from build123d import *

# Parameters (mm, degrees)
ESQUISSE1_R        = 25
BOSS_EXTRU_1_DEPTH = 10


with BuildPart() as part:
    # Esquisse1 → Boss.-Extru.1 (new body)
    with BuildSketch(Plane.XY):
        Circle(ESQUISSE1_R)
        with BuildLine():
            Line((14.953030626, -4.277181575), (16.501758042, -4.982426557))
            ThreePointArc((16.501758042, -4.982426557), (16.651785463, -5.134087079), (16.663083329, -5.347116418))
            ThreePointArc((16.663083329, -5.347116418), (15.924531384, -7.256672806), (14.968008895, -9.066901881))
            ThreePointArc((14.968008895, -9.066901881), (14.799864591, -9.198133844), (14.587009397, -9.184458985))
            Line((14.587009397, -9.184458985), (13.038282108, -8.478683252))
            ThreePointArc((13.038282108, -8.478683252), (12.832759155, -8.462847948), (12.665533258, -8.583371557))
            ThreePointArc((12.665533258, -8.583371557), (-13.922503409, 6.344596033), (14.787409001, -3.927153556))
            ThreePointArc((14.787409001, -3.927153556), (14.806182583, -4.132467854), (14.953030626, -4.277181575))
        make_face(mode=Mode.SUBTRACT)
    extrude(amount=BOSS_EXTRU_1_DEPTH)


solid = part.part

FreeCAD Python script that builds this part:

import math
import FreeCAD as App
import Part
import Sketcher
from FreeCAD import Vector
Q = App.Units.Quantity

doc = App.newDocument("Part")
params = doc.addObject("Spreadsheet::Sheet", "Params")
for row, (alias, value) in enumerate([
    ("sketch1_diameter", "50 mm"),
    ("sketch1_radius", "0.3 mm"),
    ("sketch1_radius2", "17.5 mm"),
    ("sketch1_radius3", "15.3 mm"),
    ("pad1_length", "10 mm"),
], start=1):
    params.set(f"A{row}", alias)
    params.set(f"B{row}", "=" + value)
    params.setAlias(f"B{row}", alias)

body = doc.addObject("PartDesign::Body", "Body")

sketch1 = body.newObject("Sketcher::SketchObject", "Sketch")
sketch1.AttachmentSupport = (doc.getObject("XY_Plane"), [""])
sketch1.MapMode = "FlatFace"
sketch1.addGeometry(Part.Circle(Vector(0, 0, 0), Vector(0, 0, 1), 25), False)
sketch1.addGeometry(Part.ArcOfCircle(Part.Circle(Vector(15.077358, -4.004157, 0), Vector(0, 0, 1), 0.3), math.radians(165.12704), math.radians(245.516874)), False)
sketch1.addGeometry(Part.LineSegment(Vector(14.953031, -4.277182, 0), Vector(16.501758, -4.982427, 0)), False)
sketch1.addGeometry(Part.ArcOfCircle(Part.Circle(Vector(16.37743, -5.255452, 0), Vector(0, 0, 1), 0.3), math.radians(-17.791227), math.radians(65.516874)), False)
sketch1.addGeometry(Part.ArcOfCircle(Part.Circle(Vector(0, 0, 0), Vector(0, 0, 1), 17.5), math.radians(-31.205471), math.radians(-17.791227)), False)
sketch1.addGeometry(Part.ArcOfCircle(Part.Circle(Vector(14.711414, -8.911469, 0), Vector(0, 0, 1), 0.3), math.radians(-114.499389), math.radians(-31.205471)), False)
sketch1.addGeometry(Part.LineSegment(Vector(14.587009, -9.184459, 0), Vector(13.038282, -8.478683, 0)), False)
sketch1.addGeometry(Part.ArcOfCircle(Part.Circle(Vector(12.913877, -8.751673, 0), Vector(0, 0, 1), 0.3), math.radians(65.500611), math.radians(145.874694)), False)
sketch1.addGeometry(Part.ArcOfCircle(Part.Circle(Vector(0, 0, 0), Vector(0, 0, 1), 15.3), math.radians(-14.87296), math.radians(325.874694)), False)
sketch1.addConstraint(Sketcher.Constraint("Tangent", 1, 2, 2, 1))
sketch1.addConstraint(Sketcher.Constraint("Tangent", 2, 2, 3, 2))
sketch1.addConstraint(Sketcher.Constraint("Tangent", 3, 1, 4, 2))
sketch1.addConstraint(Sketcher.Constraint("Tangent", 4, 1, 5, 2))
sketch1.addConstraint(Sketcher.Constraint("Tangent", 5, 1, 6, 1))
sketch1.addConstraint(Sketcher.Constraint("Tangent", 6, 2, 7, 1))
sketch1.addConstraint(Sketcher.Constraint("Tangent", 7, 2, 8, 2))
sketch1.addConstraint(Sketcher.Constraint("Tangent", 8, 1, 1, 1))
sketch1.addConstraint(Sketcher.Constraint("Coincident", 0, 3, -1, 1))
sketch1.addConstraint(Sketcher.Constraint("Coincident", 4, 3, -1, 1))
sketch1.addConstraint(Sketcher.Constraint("Coincident", 8, 3, -1, 1))
sketch1.addConstraint(Sketcher.Constraint("Equal", 1, 3))
sketch1.addConstraint(Sketcher.Constraint("Equal", 3, 5))
sketch1.addConstraint(Sketcher.Constraint("Equal", 5, 7))
sketch1.addConstraint(Sketcher.Constraint("Diameter", 0, Q("50 mm")))
sketch1.addConstraint(Sketcher.Constraint("Radius", 1, Q("0.3 mm")))
sketch1.addConstraint(Sketcher.Constraint("Radius", 4, Q("17.5 mm")))
sketch1.addConstraint(Sketcher.Constraint("Radius", 8, Q("15.3 mm")))
sketch1.addConstraint(Sketcher.Constraint("DistanceX", 5, 1, 4, 1, Q("0.380999 mm")))
sketch1.addConstraint(Sketcher.Constraint("DistanceY", 4, 1, -1, 1, Q("9.066902 mm")))
sketch1.addConstraint(Sketcher.Constraint("DistanceX", 1, 2, 3, 3, Q("1.4244 mm")))
sketch1.addConstraint(Sketcher.Constraint("DistanceY", 6, 2, 1, 2, Q("4.201502 mm")))
sketch1.setExpression("Constraints[14]", "Params.sketch1_diameter")
sketch1.setExpression("Constraints[15]", "Params.sketch1_radius")
sketch1.setExpression("Constraints[16]", "Params.sketch1_radius2")
sketch1.setExpression("Constraints[17]", "Params.sketch1_radius3")
pad1 = body.newObject("PartDesign::Pad", "Pad")
pad1.Profile = sketch1
pad1.setExpression("Length", "Params.pad1_length")

doc.recompute()
